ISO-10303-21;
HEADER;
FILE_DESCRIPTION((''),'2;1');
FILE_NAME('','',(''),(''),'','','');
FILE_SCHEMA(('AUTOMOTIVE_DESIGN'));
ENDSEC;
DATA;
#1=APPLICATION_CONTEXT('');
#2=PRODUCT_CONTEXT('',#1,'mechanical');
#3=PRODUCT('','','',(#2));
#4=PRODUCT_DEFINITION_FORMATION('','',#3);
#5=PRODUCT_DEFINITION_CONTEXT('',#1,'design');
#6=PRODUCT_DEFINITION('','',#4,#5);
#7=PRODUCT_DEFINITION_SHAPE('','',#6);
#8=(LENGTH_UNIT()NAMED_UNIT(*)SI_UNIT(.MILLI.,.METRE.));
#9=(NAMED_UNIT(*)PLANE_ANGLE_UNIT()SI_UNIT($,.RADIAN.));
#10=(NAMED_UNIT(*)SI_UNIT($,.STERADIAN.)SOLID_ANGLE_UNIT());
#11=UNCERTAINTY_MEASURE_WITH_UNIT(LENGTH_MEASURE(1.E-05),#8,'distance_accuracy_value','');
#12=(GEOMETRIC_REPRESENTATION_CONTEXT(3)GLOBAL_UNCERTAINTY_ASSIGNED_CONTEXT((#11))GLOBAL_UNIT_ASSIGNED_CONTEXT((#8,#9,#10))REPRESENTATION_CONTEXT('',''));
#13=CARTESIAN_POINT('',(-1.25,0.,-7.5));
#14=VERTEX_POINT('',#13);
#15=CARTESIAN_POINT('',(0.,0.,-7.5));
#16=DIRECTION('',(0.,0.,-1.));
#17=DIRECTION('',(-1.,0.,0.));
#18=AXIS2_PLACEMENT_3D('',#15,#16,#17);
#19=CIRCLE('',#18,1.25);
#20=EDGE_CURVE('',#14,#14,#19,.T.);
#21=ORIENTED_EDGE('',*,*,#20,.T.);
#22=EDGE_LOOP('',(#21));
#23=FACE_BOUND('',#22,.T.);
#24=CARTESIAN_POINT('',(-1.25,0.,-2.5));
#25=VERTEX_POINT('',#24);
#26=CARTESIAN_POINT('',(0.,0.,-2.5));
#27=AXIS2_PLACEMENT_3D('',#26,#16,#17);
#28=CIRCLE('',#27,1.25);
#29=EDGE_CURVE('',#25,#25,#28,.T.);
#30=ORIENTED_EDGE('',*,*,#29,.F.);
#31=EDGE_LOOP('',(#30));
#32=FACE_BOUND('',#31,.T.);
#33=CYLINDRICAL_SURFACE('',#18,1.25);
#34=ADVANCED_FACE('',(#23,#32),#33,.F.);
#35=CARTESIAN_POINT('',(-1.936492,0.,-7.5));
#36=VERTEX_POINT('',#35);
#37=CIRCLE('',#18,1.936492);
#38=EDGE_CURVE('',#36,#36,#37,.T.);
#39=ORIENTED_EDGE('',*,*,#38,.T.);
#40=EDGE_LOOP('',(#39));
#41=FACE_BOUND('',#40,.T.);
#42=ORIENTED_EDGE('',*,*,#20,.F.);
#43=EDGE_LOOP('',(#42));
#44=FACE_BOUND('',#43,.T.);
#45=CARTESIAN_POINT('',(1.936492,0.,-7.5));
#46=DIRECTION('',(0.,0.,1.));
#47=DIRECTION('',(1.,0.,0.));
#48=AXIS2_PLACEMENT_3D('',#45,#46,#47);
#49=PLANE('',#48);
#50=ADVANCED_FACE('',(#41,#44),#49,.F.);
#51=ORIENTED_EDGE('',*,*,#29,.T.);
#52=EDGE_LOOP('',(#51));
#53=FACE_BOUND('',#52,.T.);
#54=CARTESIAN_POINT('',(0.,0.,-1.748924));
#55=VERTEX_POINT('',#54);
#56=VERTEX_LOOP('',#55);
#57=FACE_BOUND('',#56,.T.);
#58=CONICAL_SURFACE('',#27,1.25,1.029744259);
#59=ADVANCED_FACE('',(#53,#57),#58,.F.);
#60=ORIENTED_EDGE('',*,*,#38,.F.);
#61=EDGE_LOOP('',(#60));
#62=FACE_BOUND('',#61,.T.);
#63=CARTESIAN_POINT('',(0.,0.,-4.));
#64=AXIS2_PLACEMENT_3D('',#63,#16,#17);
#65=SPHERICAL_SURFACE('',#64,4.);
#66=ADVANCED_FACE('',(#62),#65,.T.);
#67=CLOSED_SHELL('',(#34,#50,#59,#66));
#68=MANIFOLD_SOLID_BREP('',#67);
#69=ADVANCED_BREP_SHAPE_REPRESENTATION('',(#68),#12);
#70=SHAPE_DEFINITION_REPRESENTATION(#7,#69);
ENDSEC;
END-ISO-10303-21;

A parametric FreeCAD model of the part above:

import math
import FreeCAD as App
import Part
import Sketcher

doc = App.newDocument("Part")
body = doc.addObject("PartDesign::Body", "Body")

# Sketch on XZ plane
sketch1 = doc.addObject("Sketcher::SketchObject", "Sketch")
body.addObject(sketch1)
sketch1.AttachmentSupport = (doc.XZ_Plane, [""])
sketch1.MapMode = "FlatFace"
sketch1.addGeometry(Part.LineSegment(App.Vector(1.9, -7.5, 0), App.Vector(0, -7.5, 0)), False)
sketch1.addGeometry(Part.LineSegment(App.Vector(0, -7.5, 0), App.Vector(0, 0, 0)), False)
sketch1.addGeometry(Part.ArcOfCircle(Part.Circle(App.Vector(0, -4, 0), App.Vector(0, 0, 1), 4), math.radians(-61), math.radians(90)), False)
sketch1.addConstraint(Sketcher.Constraint("Coincident", 0, 2, 1, 1))
sketch1.addConstraint(Sketcher.Constraint("Coincident", 1, 2, 2, 2))
sketch1.addConstraint(Sketcher.Constraint("Coincident", 2, 1, 0, 1))
sketch1.addConstraint(Sketcher.Constraint("Horizontal", 0))
sketch1.addConstraint(Sketcher.Constraint("Vertical", 1))
sketch1.addConstraint(Sketcher.Constraint("Coincident", 1, 2, -1, 1))
sketch1.addConstraint(Sketcher.Constraint("PointOnObject", 2, 3, -2))
sketch1.addConstraint(Sketcher.Constraint("Radius", 2, 4.0))
sketch1.addConstraint(Sketcher.Constraint("DistanceY", 1, 1, 1, 2, 7.5))
revolution = doc.addObject("PartDesign::Revolution", "Revolution")
body.addObject(revolution)
revolution.Profile = sketch1
revolution.ReferenceAxis = (sketch1, ["V_Axis"])
revolution.Angle = 360

# Sketch on XY plane
sketch2 = doc.addObject("Sketcher::SketchObject", "Sketch001")
body.addObject(sketch2)
sketch2.AttachmentSupport = (doc.XY_Plane, [""])
sketch2.MapMode = "FlatFace"
sketch2.AttachmentOffset = App.Placement(App.Vector(0, 0, -7.5), App.Rotation())
sketch2.addGeometry(Part.Circle(App.Vector(0, 0, 0), App.Vector(0, 0, 1), 1.2), False)
sketch2.addConstraint(Sketcher.Constraint("Coincident", 0, 3, -1, 1))
sketch2.addConstraint(Sketcher.Constraint("Diameter", 0, 2.5))
doc.recompute()
hole = doc.addObject("PartDesign::Hole", "Hole")
body.addObject(hole)
hole.Profile = sketch2
hole.ThreadType = "None"
hole.Diameter = 2.5
hole.DepthType = "Dimension"
hole.Depth = 5
hole.DrillPoint = "Angled"
hole.DrillPointAngle = 118
hole.Reversed = True

doc.recompute()
